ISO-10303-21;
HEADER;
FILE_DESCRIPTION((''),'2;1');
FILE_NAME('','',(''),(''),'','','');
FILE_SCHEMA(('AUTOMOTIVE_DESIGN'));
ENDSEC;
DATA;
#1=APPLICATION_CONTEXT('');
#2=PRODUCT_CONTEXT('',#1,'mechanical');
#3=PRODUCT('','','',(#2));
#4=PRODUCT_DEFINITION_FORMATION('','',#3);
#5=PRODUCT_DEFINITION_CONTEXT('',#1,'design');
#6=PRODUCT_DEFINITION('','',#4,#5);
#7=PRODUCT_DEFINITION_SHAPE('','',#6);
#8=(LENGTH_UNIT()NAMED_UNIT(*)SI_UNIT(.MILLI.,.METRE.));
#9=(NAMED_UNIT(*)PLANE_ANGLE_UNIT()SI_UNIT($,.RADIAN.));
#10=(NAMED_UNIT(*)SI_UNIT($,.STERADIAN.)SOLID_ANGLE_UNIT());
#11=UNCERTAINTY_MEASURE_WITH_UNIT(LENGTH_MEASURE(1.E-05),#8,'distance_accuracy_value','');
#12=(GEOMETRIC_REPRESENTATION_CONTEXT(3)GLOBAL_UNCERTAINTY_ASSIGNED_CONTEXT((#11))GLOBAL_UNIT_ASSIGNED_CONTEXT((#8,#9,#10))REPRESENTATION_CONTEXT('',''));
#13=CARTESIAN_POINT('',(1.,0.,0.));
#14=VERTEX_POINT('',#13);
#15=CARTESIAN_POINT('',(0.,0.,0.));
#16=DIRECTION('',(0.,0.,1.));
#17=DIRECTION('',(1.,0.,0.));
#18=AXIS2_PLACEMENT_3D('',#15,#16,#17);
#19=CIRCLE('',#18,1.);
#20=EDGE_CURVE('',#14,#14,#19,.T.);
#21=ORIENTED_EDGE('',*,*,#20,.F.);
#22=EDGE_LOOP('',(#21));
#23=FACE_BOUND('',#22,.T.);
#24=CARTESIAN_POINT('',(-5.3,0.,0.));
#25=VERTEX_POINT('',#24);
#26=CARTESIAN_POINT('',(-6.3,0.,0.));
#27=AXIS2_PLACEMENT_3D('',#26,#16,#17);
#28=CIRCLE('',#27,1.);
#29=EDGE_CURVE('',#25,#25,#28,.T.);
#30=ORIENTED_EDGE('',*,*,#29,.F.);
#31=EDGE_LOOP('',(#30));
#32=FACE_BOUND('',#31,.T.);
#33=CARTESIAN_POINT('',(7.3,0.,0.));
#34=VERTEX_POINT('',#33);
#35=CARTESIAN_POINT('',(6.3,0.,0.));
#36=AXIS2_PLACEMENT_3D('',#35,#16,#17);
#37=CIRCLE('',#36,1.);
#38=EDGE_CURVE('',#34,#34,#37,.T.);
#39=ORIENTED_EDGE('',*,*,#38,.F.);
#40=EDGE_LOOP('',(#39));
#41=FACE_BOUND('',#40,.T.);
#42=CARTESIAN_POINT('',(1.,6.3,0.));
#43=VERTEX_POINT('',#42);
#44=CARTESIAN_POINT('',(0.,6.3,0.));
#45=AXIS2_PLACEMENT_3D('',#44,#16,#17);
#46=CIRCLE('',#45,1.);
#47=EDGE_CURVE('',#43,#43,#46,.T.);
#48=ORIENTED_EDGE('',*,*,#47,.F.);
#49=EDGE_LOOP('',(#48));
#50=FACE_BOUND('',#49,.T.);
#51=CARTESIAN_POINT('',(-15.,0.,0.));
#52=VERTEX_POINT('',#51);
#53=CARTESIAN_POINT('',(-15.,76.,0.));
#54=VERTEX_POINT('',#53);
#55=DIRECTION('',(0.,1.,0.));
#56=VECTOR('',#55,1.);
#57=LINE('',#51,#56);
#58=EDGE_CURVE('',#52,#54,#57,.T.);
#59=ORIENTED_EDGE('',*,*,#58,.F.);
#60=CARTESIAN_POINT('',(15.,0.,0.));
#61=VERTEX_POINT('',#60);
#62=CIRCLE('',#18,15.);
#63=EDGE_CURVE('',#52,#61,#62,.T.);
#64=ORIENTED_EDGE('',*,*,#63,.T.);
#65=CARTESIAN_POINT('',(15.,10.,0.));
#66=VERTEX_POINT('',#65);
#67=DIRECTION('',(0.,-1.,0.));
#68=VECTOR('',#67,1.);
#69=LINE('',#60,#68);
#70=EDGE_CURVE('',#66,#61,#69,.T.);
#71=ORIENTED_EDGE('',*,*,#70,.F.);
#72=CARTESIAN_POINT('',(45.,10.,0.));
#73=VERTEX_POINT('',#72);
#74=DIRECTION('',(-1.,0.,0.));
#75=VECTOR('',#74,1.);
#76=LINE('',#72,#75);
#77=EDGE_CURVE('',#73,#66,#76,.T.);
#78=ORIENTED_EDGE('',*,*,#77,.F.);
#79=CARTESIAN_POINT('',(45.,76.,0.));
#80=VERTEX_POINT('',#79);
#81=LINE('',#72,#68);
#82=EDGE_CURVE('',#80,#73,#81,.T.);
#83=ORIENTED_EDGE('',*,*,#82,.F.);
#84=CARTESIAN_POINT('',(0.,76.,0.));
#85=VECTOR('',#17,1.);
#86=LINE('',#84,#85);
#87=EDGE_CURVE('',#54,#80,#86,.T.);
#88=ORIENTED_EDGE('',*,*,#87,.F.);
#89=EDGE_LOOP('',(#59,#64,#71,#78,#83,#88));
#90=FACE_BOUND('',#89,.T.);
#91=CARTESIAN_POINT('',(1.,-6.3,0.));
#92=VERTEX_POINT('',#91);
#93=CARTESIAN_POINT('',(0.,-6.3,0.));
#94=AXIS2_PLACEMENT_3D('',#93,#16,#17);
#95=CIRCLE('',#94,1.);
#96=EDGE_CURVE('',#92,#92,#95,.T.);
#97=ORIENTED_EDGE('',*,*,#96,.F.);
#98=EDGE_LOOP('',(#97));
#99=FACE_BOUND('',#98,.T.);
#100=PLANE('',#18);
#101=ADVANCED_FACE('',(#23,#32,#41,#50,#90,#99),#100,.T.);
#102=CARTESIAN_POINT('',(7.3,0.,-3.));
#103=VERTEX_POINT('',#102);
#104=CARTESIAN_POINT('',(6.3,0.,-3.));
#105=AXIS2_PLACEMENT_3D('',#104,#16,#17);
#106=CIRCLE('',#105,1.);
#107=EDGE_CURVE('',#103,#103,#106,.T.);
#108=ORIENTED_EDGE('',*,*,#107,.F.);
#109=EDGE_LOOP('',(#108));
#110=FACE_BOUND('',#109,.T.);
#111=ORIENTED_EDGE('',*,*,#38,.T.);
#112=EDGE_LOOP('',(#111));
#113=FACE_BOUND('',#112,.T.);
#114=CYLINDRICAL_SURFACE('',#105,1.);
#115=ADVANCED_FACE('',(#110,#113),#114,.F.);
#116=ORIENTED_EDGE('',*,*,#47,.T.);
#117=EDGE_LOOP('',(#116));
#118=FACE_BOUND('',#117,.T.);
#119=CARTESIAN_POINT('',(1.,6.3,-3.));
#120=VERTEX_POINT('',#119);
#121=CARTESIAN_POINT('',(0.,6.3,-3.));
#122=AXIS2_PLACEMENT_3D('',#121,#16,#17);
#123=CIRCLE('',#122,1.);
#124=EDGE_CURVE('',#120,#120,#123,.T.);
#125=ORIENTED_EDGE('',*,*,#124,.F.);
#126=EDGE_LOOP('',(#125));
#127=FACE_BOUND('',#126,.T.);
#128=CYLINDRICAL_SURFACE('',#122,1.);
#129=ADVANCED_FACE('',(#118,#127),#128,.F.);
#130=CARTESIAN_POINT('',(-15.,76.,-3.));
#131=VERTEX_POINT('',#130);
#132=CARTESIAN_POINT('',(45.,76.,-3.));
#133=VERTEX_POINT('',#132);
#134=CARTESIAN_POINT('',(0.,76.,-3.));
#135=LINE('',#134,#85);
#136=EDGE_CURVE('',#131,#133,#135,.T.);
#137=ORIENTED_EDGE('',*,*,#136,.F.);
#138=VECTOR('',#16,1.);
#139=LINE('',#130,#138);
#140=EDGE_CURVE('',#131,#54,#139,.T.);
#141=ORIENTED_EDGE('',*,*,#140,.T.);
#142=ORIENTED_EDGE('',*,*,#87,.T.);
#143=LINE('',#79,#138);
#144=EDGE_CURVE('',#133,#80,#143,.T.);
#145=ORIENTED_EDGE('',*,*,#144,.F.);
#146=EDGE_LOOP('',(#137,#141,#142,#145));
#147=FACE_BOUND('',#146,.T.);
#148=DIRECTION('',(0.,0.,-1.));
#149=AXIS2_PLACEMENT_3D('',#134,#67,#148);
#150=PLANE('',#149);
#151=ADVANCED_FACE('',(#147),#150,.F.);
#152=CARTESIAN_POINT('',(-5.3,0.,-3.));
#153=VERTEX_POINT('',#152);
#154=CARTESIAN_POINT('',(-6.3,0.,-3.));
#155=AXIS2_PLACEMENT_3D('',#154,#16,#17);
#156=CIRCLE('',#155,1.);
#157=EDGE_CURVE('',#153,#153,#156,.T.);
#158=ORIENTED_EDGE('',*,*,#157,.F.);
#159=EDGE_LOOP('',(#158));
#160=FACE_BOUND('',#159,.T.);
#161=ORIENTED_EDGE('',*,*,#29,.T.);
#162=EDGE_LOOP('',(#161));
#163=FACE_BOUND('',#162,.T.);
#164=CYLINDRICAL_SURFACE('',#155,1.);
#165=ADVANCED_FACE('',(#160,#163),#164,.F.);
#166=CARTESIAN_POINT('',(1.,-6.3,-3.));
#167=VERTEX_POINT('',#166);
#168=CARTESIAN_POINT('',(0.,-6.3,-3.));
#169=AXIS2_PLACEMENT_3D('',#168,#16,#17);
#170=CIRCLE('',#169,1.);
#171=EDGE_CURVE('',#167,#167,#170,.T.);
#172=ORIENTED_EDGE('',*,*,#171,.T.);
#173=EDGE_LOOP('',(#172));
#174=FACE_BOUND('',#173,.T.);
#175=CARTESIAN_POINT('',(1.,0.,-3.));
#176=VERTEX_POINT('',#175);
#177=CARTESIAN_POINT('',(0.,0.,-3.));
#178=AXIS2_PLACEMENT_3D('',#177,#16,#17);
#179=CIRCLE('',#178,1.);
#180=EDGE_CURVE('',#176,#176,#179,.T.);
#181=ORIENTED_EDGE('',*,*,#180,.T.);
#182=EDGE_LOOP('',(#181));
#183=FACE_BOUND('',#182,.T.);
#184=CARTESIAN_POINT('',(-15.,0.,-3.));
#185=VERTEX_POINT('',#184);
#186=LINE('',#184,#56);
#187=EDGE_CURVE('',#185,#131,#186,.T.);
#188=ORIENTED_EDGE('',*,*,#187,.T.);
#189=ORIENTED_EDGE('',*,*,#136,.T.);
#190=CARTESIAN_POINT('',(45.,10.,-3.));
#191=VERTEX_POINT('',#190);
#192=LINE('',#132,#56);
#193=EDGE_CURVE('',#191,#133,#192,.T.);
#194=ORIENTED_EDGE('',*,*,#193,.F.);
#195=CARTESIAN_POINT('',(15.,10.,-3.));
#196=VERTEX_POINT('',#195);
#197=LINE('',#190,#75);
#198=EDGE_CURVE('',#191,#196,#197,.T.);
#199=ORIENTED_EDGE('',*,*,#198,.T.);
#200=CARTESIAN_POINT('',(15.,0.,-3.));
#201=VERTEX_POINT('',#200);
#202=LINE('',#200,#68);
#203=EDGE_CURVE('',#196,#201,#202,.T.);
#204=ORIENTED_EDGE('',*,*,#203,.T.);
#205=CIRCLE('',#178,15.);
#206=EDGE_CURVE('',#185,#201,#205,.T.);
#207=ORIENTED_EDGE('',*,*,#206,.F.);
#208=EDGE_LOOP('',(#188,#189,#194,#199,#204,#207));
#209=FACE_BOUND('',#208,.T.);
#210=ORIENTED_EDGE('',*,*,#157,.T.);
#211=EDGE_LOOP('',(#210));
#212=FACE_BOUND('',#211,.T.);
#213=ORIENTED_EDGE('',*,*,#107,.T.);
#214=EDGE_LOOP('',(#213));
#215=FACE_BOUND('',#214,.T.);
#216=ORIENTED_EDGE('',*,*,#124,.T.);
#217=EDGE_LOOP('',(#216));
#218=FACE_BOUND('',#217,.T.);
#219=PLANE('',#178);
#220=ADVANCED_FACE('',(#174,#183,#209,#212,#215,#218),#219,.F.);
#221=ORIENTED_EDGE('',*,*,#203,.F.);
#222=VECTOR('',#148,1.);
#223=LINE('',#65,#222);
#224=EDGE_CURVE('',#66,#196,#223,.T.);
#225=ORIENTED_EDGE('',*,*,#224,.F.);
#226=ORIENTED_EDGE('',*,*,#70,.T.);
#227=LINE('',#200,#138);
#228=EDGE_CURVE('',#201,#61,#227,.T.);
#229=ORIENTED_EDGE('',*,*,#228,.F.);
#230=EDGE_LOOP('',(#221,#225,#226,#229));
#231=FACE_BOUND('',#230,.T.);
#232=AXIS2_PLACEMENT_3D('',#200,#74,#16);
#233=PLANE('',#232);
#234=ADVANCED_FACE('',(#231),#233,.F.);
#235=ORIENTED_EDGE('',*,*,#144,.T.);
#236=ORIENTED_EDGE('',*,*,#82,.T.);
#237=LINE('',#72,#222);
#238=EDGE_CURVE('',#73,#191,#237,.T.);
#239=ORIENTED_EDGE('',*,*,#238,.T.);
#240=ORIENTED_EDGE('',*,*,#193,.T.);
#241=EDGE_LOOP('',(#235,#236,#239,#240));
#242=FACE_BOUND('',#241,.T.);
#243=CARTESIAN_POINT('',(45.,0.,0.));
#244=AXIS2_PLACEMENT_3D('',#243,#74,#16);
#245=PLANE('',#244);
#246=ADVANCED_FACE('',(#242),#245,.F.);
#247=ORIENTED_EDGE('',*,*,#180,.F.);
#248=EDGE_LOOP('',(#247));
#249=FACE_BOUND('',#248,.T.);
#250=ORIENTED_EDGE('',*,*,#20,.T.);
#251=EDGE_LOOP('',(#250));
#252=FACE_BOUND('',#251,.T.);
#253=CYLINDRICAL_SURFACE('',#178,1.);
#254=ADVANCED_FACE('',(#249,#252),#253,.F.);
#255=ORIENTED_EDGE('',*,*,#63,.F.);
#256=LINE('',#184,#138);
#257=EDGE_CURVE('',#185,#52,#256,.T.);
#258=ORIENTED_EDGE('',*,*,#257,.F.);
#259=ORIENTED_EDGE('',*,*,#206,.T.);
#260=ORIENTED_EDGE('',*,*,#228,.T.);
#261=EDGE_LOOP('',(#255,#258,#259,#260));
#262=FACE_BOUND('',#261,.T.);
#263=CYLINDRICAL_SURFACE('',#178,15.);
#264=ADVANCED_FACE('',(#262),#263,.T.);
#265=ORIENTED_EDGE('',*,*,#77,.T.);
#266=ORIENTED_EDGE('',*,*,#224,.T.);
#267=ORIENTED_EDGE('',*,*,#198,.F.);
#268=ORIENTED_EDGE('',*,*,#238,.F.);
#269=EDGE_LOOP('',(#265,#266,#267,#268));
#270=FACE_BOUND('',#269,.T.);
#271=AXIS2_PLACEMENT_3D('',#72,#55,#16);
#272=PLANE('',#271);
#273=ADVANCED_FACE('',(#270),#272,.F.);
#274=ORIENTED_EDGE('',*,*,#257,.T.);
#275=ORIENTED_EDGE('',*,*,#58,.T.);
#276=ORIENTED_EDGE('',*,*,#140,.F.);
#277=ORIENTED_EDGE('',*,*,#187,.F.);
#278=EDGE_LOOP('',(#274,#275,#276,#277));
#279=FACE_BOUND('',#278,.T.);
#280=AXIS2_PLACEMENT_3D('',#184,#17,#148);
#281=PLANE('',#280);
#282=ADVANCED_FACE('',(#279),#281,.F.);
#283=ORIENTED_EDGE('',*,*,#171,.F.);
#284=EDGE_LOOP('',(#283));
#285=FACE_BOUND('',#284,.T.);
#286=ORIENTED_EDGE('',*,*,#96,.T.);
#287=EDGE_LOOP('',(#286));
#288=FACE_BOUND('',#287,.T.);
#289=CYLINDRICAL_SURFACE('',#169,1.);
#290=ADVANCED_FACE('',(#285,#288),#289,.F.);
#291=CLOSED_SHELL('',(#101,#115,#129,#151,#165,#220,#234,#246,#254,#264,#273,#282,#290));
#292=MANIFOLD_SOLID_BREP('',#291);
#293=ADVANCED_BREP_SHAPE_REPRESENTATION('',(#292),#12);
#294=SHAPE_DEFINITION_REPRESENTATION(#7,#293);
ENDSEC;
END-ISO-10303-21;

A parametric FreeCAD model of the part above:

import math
import FreeCAD as App
import Part
import Sketcher
Q = App.Units.Quantity


def add_polygon(sketch, points):
    """Adds a closed chain of lines whose ends are joined by coincident constraints."""
    first, n = sketch.GeometryCount, len(points)
    for a, b in zip(points, points[1:] + points[:1]):
        sketch.addGeometry(Part.LineSegment(App.Vector(*a, 0), App.Vector(*b, 0)), False)
    for i in range(n):
        sketch.addConstraint(Sketcher.Constraint("Coincident", first + i, 2, first + (i + 1) % n, 1))

doc = App.newDocument("Part")
body = doc.addObject("PartDesign::Body", "Body")

# Sketch on XY plane
sketch1 = body.newObject("Sketcher::SketchObject", "Sketch")
sketch1.AttachmentSupport = (doc.getObject("XY_Plane"), [""])
sketch1.MapMode = "FlatFace"
sketch1.addGeometry([
    Part.ArcOfCircle(Part.Circle(App.Vector(0, 0, 0), App.Vector(0, 0, 1), 15), math.radians(180), math.radians(360)),  # 0
    Part.LineSegment(App.Vector(15, 0, 0), App.Vector(15, 76, 0)),  # 1
    Part.LineSegment(App.Vector(15, 76, 0), App.Vector(-15, 76, 0)),  # 2
    Part.LineSegment(App.Vector(-15, 76, 0), App.Vector(-15, 0, 0)),  # 3
    Part.Circle(App.Vector(0, -6.3, 0), App.Vector(0, 0, 1), 1),  # 4
    Part.Circle(App.Vector(-6.3, 0, 0), App.Vector(0, 0, 1), 1),  # 5
    Part.Circle(App.Vector(0, 0, 0), App.Vector(0, 0, 1), 1),  # 6
    Part.Circle(App.Vector(6.3, 0, 0), App.Vector(0, 0, 1), 1),  # 7
    Part.Circle(App.Vector(0, 6.3, 0), App.Vector(0, 0, 1), 1),  # 8
], False)
sketch1.addConstraint([
    Sketcher.Constraint("Tangent", 0, 2, 1, 1),
    Sketcher.Constraint("Coincident", 1, 2, 2, 1),
    Sketcher.Constraint("Coincident", 2, 2, 3, 1),
    Sketcher.Constraint("Tangent", 3, 2, 0, 1),
    Sketcher.Constraint("Vertical", 1),
    Sketcher.Constraint("Horizontal", 2),
    Sketcher.Constraint("Vertical", 3),
    Sketcher.Constraint("Coincident", 0, 3, -1, 1),
    Sketcher.Constraint("Coincident", 6, 3, -1, 1),
    Sketcher.Constraint("Equal", 4, 5),
    Sketcher.Constraint("Equal", 5, 6),
    Sketcher.Constraint("Equal", 6, 7),
    Sketcher.Constraint("Equal", 7, 8),
    Sketcher.Constraint("Symmetric", 5, 3, 7, 3, -1, 1),
    Sketcher.Constraint("Symmetric", 4, 3, 8, 3, -1, 1),
    Sketcher.Constraint("PointOnObject", 4, 3, -2),
    Sketcher.Constraint("PointOnObject", 5, 3, -1),
    Sketcher.Constraint("Diameter", 4, Q("2 mm")),
    Sketcher.Constraint("Radius", 0, Q("15 mm")),
    Sketcher.Constraint("DistanceY", 1, 1, 1, 2, Q("76 mm")),
    Sketcher.Constraint("DistanceY", 4, 3, -1, 1, Q("6.3 mm")),
    Sketcher.Constraint("DistanceX", 5, 3, -1, 1, Q("6.3 mm")),
])
pad1 = body.newObject("PartDesign::Pad", "Pad")
pad1.Profile = sketch1
pad1.Length = 3
pad1.Reversed = True

# Sketch on YZ plane
sketch2 = body.newObject("Sketcher::SketchObject", "Sketch001")
sketch2.AttachmentSupport = (doc.getObject("YZ_Plane"), [""])
sketch2.MapMode = "FlatFace"
sketch2.AttachmentOffset = App.Placement(App.Vector(0, 0, 15), App.Rotation())
add_polygon(sketch2, [(76, 0), (10, 0), (10, -3), (76, -3)])  # lines 0-3
sketch2.addConstraint([
    Sketcher.Constraint("Horizontal", 0),
    Sketcher.Constraint("Vertical", 1),
    Sketcher.Constraint("Horizontal", 2),
    Sketcher.Constraint("Vertical", 3),
    Sketcher.Constraint("PointOnObject", 0, 2, -1),
    Sketcher.Constraint("DistanceX", 0, 2, 0, 1, Q("66 mm")),
    Sketcher.Constraint("DistanceY", 1, 2, 1, 1, Q("3 mm")),
    Sketcher.Constraint("DistanceX", -1, 1, 0, 2, Q("10 mm")),
])
pad2 = body.newObject("PartDesign::Pad", "Pad001")
pad2.Profile = sketch2
pad2.Length = 30

doc.recompute()
